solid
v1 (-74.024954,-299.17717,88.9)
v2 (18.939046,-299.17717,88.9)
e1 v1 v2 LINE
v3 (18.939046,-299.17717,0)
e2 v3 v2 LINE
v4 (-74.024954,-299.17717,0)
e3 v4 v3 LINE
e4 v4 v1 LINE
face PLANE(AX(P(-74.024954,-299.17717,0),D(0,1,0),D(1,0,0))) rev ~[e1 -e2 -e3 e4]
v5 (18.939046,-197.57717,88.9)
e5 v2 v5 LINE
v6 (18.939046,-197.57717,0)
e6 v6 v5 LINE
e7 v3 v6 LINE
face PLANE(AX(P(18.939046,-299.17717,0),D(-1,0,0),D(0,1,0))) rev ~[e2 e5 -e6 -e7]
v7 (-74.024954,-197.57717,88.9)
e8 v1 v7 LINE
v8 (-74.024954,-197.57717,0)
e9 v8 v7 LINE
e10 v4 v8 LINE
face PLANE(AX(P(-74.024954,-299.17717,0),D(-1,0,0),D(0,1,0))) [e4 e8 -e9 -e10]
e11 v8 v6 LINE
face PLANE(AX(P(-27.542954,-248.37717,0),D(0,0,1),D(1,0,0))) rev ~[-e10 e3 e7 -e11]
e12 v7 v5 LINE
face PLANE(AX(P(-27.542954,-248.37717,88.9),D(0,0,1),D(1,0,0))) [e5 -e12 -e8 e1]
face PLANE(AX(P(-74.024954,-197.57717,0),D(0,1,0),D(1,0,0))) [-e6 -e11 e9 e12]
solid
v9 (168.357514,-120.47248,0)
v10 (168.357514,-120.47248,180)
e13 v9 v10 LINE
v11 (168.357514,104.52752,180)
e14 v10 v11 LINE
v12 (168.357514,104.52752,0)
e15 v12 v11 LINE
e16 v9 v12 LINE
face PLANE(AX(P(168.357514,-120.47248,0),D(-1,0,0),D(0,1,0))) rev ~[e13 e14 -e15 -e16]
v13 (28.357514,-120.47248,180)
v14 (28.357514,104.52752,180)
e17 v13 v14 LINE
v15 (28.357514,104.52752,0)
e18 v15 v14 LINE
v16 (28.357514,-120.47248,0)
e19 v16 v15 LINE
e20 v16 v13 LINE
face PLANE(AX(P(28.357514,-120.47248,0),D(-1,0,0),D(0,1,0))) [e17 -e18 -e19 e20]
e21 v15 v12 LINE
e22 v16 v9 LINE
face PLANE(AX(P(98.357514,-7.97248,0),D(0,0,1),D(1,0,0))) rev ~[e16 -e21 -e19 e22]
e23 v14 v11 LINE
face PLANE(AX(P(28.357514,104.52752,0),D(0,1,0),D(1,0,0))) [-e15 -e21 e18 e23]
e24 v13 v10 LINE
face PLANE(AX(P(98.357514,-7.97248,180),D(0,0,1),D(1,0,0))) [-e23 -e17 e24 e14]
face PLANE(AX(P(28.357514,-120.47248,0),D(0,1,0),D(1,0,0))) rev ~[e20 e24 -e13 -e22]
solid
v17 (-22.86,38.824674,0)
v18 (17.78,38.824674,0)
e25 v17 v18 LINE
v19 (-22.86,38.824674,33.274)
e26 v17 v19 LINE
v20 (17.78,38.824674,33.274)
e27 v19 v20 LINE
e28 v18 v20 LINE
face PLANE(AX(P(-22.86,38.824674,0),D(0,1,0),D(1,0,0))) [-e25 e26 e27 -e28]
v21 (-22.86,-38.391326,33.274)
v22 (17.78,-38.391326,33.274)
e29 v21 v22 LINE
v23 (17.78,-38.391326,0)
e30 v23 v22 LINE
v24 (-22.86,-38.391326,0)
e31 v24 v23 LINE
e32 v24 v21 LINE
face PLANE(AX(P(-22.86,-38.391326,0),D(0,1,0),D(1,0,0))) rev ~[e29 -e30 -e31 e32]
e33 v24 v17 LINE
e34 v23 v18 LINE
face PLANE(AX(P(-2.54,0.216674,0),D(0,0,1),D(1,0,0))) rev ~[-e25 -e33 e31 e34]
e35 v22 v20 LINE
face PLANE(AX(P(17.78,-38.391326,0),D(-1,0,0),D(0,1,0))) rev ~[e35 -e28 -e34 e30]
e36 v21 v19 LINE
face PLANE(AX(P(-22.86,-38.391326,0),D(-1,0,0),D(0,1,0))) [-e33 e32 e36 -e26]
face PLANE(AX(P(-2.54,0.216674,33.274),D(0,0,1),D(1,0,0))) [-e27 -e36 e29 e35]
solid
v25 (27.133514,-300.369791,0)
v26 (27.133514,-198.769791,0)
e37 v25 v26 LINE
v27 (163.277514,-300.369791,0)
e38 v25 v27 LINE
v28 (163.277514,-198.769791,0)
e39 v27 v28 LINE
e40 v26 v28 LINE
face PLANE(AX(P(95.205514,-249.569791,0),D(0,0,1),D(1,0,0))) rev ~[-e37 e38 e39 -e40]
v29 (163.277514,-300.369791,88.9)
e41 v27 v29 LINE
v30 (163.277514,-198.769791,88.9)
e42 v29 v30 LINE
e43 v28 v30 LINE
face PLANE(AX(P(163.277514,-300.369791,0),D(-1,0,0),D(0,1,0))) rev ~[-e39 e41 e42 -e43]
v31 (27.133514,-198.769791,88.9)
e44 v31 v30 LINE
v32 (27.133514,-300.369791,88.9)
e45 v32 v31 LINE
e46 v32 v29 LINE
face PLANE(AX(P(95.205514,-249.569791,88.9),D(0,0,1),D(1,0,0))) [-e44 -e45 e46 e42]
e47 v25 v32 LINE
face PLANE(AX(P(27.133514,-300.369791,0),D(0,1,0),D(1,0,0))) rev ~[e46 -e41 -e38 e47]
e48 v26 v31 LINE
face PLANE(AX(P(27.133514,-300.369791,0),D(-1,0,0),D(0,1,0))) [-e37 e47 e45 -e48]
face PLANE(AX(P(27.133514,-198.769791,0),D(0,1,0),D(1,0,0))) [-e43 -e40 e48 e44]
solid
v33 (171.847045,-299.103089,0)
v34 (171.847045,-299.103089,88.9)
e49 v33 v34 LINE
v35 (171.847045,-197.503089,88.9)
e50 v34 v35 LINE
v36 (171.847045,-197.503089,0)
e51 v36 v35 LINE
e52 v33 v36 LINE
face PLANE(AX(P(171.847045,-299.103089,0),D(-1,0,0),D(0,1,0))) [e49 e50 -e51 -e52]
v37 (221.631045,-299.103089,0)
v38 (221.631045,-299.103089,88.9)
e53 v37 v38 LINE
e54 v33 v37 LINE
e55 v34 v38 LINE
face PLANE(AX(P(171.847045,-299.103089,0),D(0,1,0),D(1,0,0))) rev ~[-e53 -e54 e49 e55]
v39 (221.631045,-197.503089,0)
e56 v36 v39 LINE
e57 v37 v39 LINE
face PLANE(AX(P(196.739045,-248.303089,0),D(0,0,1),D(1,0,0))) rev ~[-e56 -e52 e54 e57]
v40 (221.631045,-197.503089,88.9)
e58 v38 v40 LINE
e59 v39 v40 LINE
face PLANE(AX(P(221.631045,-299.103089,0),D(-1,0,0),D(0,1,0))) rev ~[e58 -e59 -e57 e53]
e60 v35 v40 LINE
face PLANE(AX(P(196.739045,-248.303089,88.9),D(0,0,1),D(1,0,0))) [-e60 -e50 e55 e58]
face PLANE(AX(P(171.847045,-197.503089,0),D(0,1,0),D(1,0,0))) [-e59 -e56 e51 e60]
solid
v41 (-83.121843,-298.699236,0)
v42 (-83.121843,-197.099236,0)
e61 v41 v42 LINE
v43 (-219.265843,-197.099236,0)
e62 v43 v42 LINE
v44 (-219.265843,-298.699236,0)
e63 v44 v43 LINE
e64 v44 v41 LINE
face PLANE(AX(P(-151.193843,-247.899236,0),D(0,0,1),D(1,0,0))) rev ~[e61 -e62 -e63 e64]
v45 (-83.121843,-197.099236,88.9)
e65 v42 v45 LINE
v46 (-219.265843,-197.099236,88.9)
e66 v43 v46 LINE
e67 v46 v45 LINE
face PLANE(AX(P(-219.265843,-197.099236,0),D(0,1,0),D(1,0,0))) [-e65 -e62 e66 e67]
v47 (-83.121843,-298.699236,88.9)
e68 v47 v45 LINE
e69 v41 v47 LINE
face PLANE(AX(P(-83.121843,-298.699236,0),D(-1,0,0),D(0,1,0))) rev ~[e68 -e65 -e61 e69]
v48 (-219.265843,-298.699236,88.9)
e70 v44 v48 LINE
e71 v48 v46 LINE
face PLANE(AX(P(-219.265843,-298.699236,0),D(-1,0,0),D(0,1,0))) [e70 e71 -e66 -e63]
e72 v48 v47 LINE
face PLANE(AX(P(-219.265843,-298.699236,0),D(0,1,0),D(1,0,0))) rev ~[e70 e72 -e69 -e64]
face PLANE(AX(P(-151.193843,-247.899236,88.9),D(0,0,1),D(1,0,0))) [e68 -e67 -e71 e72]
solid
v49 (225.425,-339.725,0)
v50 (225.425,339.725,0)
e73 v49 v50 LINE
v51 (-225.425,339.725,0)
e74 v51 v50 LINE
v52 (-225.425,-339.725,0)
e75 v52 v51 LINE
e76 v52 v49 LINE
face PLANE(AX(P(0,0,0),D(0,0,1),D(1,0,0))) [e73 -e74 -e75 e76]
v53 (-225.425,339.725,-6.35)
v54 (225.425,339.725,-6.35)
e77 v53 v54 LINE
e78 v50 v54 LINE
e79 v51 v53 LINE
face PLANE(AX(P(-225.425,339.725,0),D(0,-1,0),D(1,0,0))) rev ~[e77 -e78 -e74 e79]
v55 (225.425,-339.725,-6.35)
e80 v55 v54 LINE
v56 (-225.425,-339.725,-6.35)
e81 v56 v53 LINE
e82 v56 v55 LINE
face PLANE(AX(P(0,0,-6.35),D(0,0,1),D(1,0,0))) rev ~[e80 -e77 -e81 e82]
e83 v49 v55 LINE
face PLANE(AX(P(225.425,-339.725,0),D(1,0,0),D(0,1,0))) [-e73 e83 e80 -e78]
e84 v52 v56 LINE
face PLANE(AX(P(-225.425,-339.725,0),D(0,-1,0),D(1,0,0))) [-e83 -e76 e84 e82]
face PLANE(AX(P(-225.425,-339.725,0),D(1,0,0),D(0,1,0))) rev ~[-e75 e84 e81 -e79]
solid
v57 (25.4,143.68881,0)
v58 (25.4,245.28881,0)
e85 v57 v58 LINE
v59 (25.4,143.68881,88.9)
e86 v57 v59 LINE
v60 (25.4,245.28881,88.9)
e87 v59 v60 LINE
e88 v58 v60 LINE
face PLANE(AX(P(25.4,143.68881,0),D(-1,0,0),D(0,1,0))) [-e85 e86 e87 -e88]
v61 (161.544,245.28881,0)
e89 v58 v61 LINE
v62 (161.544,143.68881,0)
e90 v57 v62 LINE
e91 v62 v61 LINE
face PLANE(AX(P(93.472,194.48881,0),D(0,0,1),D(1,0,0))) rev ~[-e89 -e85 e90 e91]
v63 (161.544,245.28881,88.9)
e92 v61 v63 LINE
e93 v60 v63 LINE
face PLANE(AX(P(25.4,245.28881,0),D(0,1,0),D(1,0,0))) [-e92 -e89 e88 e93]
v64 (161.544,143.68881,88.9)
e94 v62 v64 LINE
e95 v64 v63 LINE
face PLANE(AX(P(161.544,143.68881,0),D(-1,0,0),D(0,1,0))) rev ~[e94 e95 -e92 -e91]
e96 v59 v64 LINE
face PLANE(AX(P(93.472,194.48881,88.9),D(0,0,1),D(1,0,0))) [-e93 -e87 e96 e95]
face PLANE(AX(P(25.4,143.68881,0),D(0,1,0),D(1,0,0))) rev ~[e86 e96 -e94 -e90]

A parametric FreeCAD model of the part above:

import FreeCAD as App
import Part
import Sketcher

V = App.Vector
Q = App.Units.Quantity

doc = App.newDocument("Part")
body = doc.addObject("PartDesign::Body", "Body")

# Sketch on XY plane
sketch1 = body.newObject("Sketcher::SketchObject", "Sketch")
sketch1.AttachmentSupport = (doc.getObject("XY_Plane"), [""])
sketch1.MapMode = "FlatFace"
sketch1.addGeometry(Part.LineSegment(V(-225, 340, 0), V(-225, -340, 0)), False)
sketch1.addGeometry(Part.LineSegment(V(-225, -340, 0), V(225, -340, 0)), False)
sketch1.addGeometry(Part.LineSegment(V(225, -340, 0), V(225, 340, 0)), False)
sketch1.addGeometry(Part.LineSegment(V(225, 340, 0), V(-225, 340, 0)), False)
sketch1.addConstraint(Sketcher.Constraint("Coincident", 0, 2, 1, 1))
sketch1.addConstraint(Sketcher.Constraint("Coincident", 1, 2, 2, 1))
sketch1.addConstraint(Sketcher.Constraint("Coincident", 2, 2, 3, 1))
sketch1.addConstraint(Sketcher.Constraint("Coincident", 3, 2, 0, 1))
sketch1.addConstraint(Sketcher.Constraint("Vertical", 0))
sketch1.addConstraint(Sketcher.Constraint("Horizontal", 1))
sketch1.addConstraint(Sketcher.Constraint("Vertical", 2))
sketch1.addConstraint(Sketcher.Constraint("Horizontal", 3))
sketch1.addConstraint(Sketcher.Constraint("Symmetric", 0, 2, 2, 2, -1, 1))
sketch1.addConstraint(Sketcher.Constraint("DistanceX", 1, 1, 1, 2, Q("17.75 in")))
sketch1.addConstraint(Sketcher.Constraint("DistanceY", 0, 2, 0, 1, Q("26.75 in")))
pad1 = body.newObject("PartDesign::Pad", "Pad")
pad1.Profile = sketch1
pad1.Length = Q("0.25 in")
pad1.Reversed = True
body2 = doc.addObject("PartDesign::Body", "Body001")

# Sketch on XY plane
sketch2 = body2.newObject("Sketcher::SketchObject", "Sketch001")
sketch2.AttachmentSupport = (doc.getObject("XY_Plane001"), [""])
sketch2.MapMode = "FlatFace"
sketch2.addGeometry(Part.LineSegment(V(35, -123, 0), V(35, -224, 0)), False)
sketch2.addGeometry(Part.LineSegment(V(35, -224, 0), V(171, -224, 0)), False)
sketch2.addGeometry(Part.LineSegment(V(171, -224, 0), V(171, -123, 0)), False)
sketch2.addGeometry(Part.LineSegment(V(171, -123, 0), V(35, -123, 0)), False)
sketch2.addConstraint(Sketcher.Constraint("Coincident", 0, 2, 1, 1))
sketch2.addConstraint(Sketcher.Constraint("Coincident", 1, 2, 2, 1))
sketch2.addConstraint(Sketcher.Constraint("Coincident", 2, 2, 3, 1))
sketch2.addConstraint(Sketcher.Constraint("Coincident", 3, 2, 0, 1))
sketch2.addConstraint(Sketcher.Constraint("Vertical", 0))
sketch2.addConstraint(Sketcher.Constraint("Horizontal", 1))
sketch2.addConstraint(Sketcher.Constraint("Vertical", 2))
sketch2.addConstraint(Sketcher.Constraint("Horizontal", 3))
sketch2.addConstraint(Sketcher.Constraint("DistanceY", 0, 2, 0, 1, Q("4 in")))
sketch2.addConstraint(Sketcher.Constraint("DistanceX", 1, 1, 1, 2, Q("5.36 in")))
sketch2.addConstraint(Sketcher.Constraint("DistanceY", 0, 2, -1, 1, Q("224.169791 mm")))
sketch2.addConstraint(Sketcher.Constraint("DistanceX", -1, 1, 0, 2, Q("34.753514 mm")))
pad2 = body2.newObject("PartDesign::Pad", "Pad001")
pad2.Profile = sketch2
pad2.Length = Q("3.5 in")
body3 = doc.addObject("PartDesign::Body", "Body002")

# Sketch on XY plane
sketch3 = body3.newObject("Sketcher::SketchObject", "Sketch002")
sketch3.AttachmentSupport = (doc.getObject("XY_Plane002"), [""])
sketch3.MapMode = "FlatFace"
sketch3.addGeometry(Part.LineSegment(V(0, 210, 0), V(0, 108, 0)), False)
sketch3.addGeometry(Part.LineSegment(V(0, 108, 0), V(136, 108, 0)), False)
sketch3.addGeometry(Part.LineSegment(V(136, 108, 0), V(136, 210, 0)), False)
sketch3.addGeometry(Part.LineSegment(V(136, 210, 0), V(0, 210, 0)), False)
sketch3.addConstraint(Sketcher.Constraint("Coincident", 0, 2, 1, 1))
sketch3.addConstraint(Sketcher.Constraint("Coincident", 1, 2, 2, 1))
sketch3.addConstraint(Sketcher.Constraint("Coincident", 2, 2, 3, 1))
sketch3.addConstraint(Sketcher.Constraint("Coincident", 3, 2, 0, 1))
sketch3.addConstraint(Sketcher.Constraint("Vertical", 0))
sketch3.addConstraint(Sketcher.Constraint("Horizontal", 1))
sketch3.addConstraint(Sketcher.Constraint("Vertical", 2))
sketch3.addConstraint(Sketcher.Constraint("Horizontal", 3))
sketch3.addConstraint(Sketcher.Constraint("PointOnObject", 0, 2, -2))
sketch3.addConstraint(Sketcher.Constraint("DistanceY", 0, 2, 0, 1, Q("4 in")))
sketch3.addConstraint(Sketcher.Constraint("DistanceX", 1, 1, 1, 2, Q("5.36 in")))
sketch3.addConstraint(Sketcher.Constraint("DistanceY", -1, 1, 0, 2, Q("108.12881 mm")))
pad3 = body3.newObject("PartDesign::Pad", "Pad002")
pad3.Profile = sketch3
pad3.Length = Q("3.5 in")
body4 = doc.addObject("PartDesign::Body", "Body003")

# Sketch on XY plane
sketch4 = body4.newObject("Sketcher::SketchObject", "Sketch003")
sketch4.AttachmentSupport = (doc.getObject("XY_Plane003"), [""])
sketch4.MapMode = "FlatFace"
sketch4.addGeometry(Part.LineSegment(V(-42, -126, 0), V(-42, -228, 0)), False)
sketch4.addGeometry(Part.LineSegment(V(-42, -228, 0), V(8, -228, 0)), False)
sketch4.addGeometry(Part.LineSegment(V(8, -228, 0), V(8, -126, 0)), False)
sketch4.addGeometry(Part.LineSegment(V(8, -126, 0), V(-42, -126, 0)), False)
sketch4.addConstraint(Sketcher.Constraint("Coincident", 0, 2, 1, 1))
sketch4.addConstraint(Sketcher.Constraint("Coincident", 1, 2, 2, 1))
sketch4.addConstraint(Sketcher.Constraint("Coincident", 2, 2, 3, 1))
sketch4.addConstraint(Sketcher.Constraint("Coincident", 3, 2, 0, 1))
sketch4.addConstraint(Sketcher.Constraint("Vertical", 0))
sketch4.addConstraint(Sketcher.Constraint("Horizontal", 1))
sketch4.addConstraint(Sketcher.Constraint("Vertical", 2))
sketch4.addConstraint(Sketcher.Constraint("Horizontal", 3))
sketch4.addConstraint(Sketcher.Constraint("DistanceY", 0, 2, 0, 1, Q("4 in")))
sketch4.addConstraint(Sketcher.Constraint("DistanceX", 1, 1, 1, 2, Q("1.96 in")))
sketch4.addConstraint(Sketcher.Constraint("DistanceY", 0, 2, -1, 1, Q("227.983089 mm")))
sketch4.addConstraint(Sketcher.Constraint("DistanceX", 0, 2, -1, 1, Q("41.512955 mm")))
pad4 = body4.newObject("PartDesign::Pad", "Pad003")
pad4.Profile = sketch4
pad4.Length = Q("3.5 in")
body5 = doc.addObject("PartDesign::Body", "Body004")

# Sketch on XY plane
sketch5 = body5.newObject("Sketcher::SketchObject", "Sketch004")
sketch5.AttachmentSupport = (doc.getObject("XY_Plane004"), [""])
sketch5.MapMode = "FlatFace"
sketch5.addGeometry(Part.LineSegment(V(-222, -126, 0), V(-222, -228, 0)), False)
sketch5.addGeometry(Part.LineSegment(V(-222, -228, 0), V(-86, -228, 0)), False)
sketch5.addGeometry(Part.LineSegment(V(-86, -228, 0), V(-86, -126, 0)), False)
sketch5.addGeometry(Part.LineSegment(V(-86, -126, 0), V(-222, -126, 0)), False)
sketch5.addConstraint(Sketcher.Constraint("Coincident", 0, 2, 1, 1))
sketch5.addConstraint(Sketcher.Constraint("Coincident", 1, 2, 2, 1))
sketch5.addConstraint(Sketcher.Constraint("Coincident", 2, 2, 3, 1))
sketch5.addConstraint(Sketcher.Constraint("Coincident", 3, 2, 0, 1))
sketch5.addConstraint(Sketcher.Constraint("Vertical", 0))
sketch5.addConstraint(Sketcher.Constraint("Horizontal", 1))
sketch5.addConstraint(Sketcher.Constraint("Vertical", 2))
sketch5.addConstraint(Sketcher.Constraint("Horizontal", 3))
sketch5.addConstraint(Sketcher.Constraint("DistanceY", 0, 2, 0, 1, Q("4 in")))
sketch5.addConstraint(Sketcher.Constraint("DistanceX", 1, 1, 1, 2, Q("5.36 in")))
sketch5.addConstraint(Sketcher.Constraint("DistanceX", 0, 2, -1, 1, Q("221.805843 mm")))
sketch5.addConstraint(Sketcher.Constraint("DistanceY", 0, 2, -1, 1, Q("227.579236 mm")))
pad5 = body5.newObject("PartDesign::Pad", "Pad004")
pad5.Profile = sketch5
pad5.Length = Q("3.5 in")
body6 = doc.addObject("PartDesign::Body", "Body005")
doc.recompute()

body2.Placement = App.Placement(V(-7.62, -76.2, 0), App.Rotation(V(0, 0, 1), 0))
boolean = body6.newObject("PartDesign::Boolean", "Boolean")
boolean.Type = "Fuse"
boolean.addObjects([body2])
body7 = doc.addObject("PartDesign::Body", "Body006")
doc.recompute()

body4.Placement = App.Placement(V(213.36, -71.12, 0), App.Rotation(V(0, 0, 1), 0))
boolean2 = body7.newObject("PartDesign::Boolean", "Boolean001")
boolean2.Type = "Fuse"
boolean2.addObjects([body4])
body8 = doc.addObject("PartDesign::Body", "Body007")
doc.recompute()

body5.Placement = App.Placement(V(2.54, -71.12, 0), App.Rotation(V(0, 0, 1), 0))
boolean3 = body8.newObject("PartDesign::Boolean", "Boolean002")
boolean3.Type = "Fuse"
boolean3.addObjects([body5])
body9 = doc.addObject("PartDesign::Body", "Body008")

# Sketch on XY plane
sketch6 = body9.newObject("Sketcher::SketchObject", "Sketch005")
sketch6.AttachmentSupport = (doc.getObject("XY_Plane008"), [""])
sketch6.MapMode = "FlatFace"
sketch6.addGeometry(Part.LineSegment(V(-110, -198, 0), V(-110, -299, 0)), False)
sketch6.addGeometry(Part.LineSegment(V(-110, -299, 0), V(-17, -299, 0)), False)
sketch6.addGeometry(Part.LineSegment(V(-17, -299, 0), V(-17, -198, 0)), False)
sketch6.addGeometry(Part.LineSegment(V(-17, -198, 0), V(-110, -198, 0)), False)
sketch6.addConstraint(Sketcher.Constraint("Coincident", 0, 2, 1, 1))
sketch6.addConstraint(Sketcher.Constraint("Coincident", 1, 2, 2, 1))
sketch6.addConstraint(Sketcher.Constraint("Coincident", 2, 2, 3, 1))
sketch6.addConstraint(Sketcher.Constraint("Coincident", 3, 2, 0, 1))
sketch6.addConstraint(Sketcher.Constraint("Vertical", 0))
sketch6.addConstraint(Sketcher.Constraint("Horizontal", 1))
sketch6.addConstraint(Sketcher.Constraint("Vertical", 2))
sketch6.addConstraint(Sketcher.Constraint("Horizontal", 3))
sketch6.addConstraint(Sketcher.Constraint("DistanceY", 0, 2, 0, 1, Q("4 in")))
sketch6.addConstraint(Sketcher.Constraint("DistanceX", 1, 1, 1, 2, Q("3.66 in")))
sketch6.addConstraint(Sketcher.Constraint("DistanceY", 0, 2, -1, 1, Q("299.17717 mm")))
sketch6.addConstraint(Sketcher.Constraint("DistanceX", 0, 2, -1, 1, Q("109.584954 mm")))
pad6 = body9.newObject("PartDesign::Pad", "Pad005")
pad6.Profile = sketch6
pad6.Length = Q("3.5 in")
body10 = doc.addObject("PartDesign::Body", "Body009")
doc.recompute()

body9.Placement = App.Placement(V(35.56, 0, 0), App.Rotation(V(0, 0, 1), 0))
boolean4 = body10.newObject("PartDesign::Boolean", "Boolean003")
boolean4.Type = "Fuse"
boolean4.addObjects([body9])
body11 = doc.addObject("PartDesign::Body", "Body010")

# Sketch on XY plane
sketch7 = body11.newObject("Sketcher::SketchObject", "Sketch006")
sketch7.AttachmentSupport = (doc.getObject("XY_Plane010"), [""])
sketch7.MapMode = "FlatFace"
sketch7.addGeometry(Part.LineSegment(V(31, 61, 0), V(31, -164, 0)), False)
sketch7.addGeometry(Part.LineSegment(V(31, -164, 0), V(171, -164, 0)), False)
sketch7.addGeometry(Part.LineSegment(V(171, -164, 0), V(171, 61, 0)), False)
sketch7.addGeometry(Part.LineSegment(V(171, 61, 0), V(31, 61, 0)), False)
sketch7.addConstraint(Sketcher.Constraint("Coincident", 0, 2, 1, 1))
sketch7.addConstraint(Sketcher.Constraint("Coincident", 1, 2, 2, 1))
sketch7.addConstraint(Sketcher.Constraint("Coincident", 2, 2, 3, 1))
sketch7.addConstraint(Sketcher.Constraint("Coincident", 3, 2, 0, 1))
sketch7.addConstraint(Sketcher.Constraint("Vertical", 0))
sketch7.addConstraint(Sketcher.Constraint("Horizontal", 1))
sketch7.addConstraint(Sketcher.Constraint("Vertical", 2))
sketch7.addConstraint(Sketcher.Constraint("Horizontal", 3))
sketch7.addConstraint(Sketcher.Constraint("DistanceX", 1, 1, 1, 2, Q("140 mm")))
sketch7.addConstraint(Sketcher.Constraint("DistanceY", 0, 2, 0, 1, Q("225 mm")))
sketch7.addConstraint(Sketcher.Constraint("DistanceY", 0, 2, -1, 1, Q("163.65248 mm")))
sketch7.addConstraint(Sketcher.Constraint("DistanceX", -1, 1, 0, 2, Q("30.897514 mm")))
pad7 = body11.newObject("PartDesign::Pad", "Pad006")
pad7.Profile = sketch7
pad7.Length = 180
body12 = doc.addObject("PartDesign::Body", "Body011")

# Sketch on XY plane
sketch8 = body12.newObject("Sketcher::SketchObject", "Sketch007")
sketch8.AttachmentSupport = (doc.getObject("XY_Plane011"), [""])
sketch8.MapMode = "FlatFace"
sketch8.addGeometry(Part.LineSegment(V(-41, -93, 0), V(-41, -170, 0)), False)
sketch8.addGeometry(Part.LineSegment(V(-41, -170, 0), V(0, -170, 0)), False)
sketch8.addGeometry(Part.LineSegment(V(0, -170, 0), V(0, -93, 0)), False)
sketch8.addGeometry(Part.LineSegment(V(0, -93, 0), V(-41, -93, 0)), False)
sketch8.addConstraint(Sketcher.Constraint("Coincident", 0, 2, 1, 1))
sketch8.addConstraint(Sketcher.Constraint("Coincident", 1, 2, 2, 1))
sketch8.addConstraint(Sketcher.Constraint("Coincident", 2, 2, 3, 1))
sketch8.addConstraint(Sketcher.Constraint("Coincident", 3, 2, 0, 1))
sketch8.addConstraint(Sketcher.Constraint("Vertical", 0))
sketch8.addConstraint(Sketcher.Constraint("Horizontal", 1))
sketch8.addConstraint(Sketcher.Constraint("Vertical", 2))
sketch8.addConstraint(Sketcher.Constraint("Horizontal", 3))
sketch8.addConstraint(Sketcher.Constraint("PointOnObject", 1, 2, -2))
sketch8.addConstraint(Sketcher.Constraint("DistanceX", 1, 1, 1, 2, Q("1.6 in")))
sketch8.addConstraint(Sketcher.Constraint("DistanceY", 0, 2, 0, 1, Q("3.04 in")))
sketch8.addConstraint(Sketcher.Constraint("DistanceY", 0, 2, -1, 1, Q("170.471326 mm")))
pad8 = body12.newObject("PartDesign::Pad", "Pad007")
pad8.Profile = sketch8
pad8.Length = Q("1.31 in")
body13 = doc.addObject("PartDesign::Body", "Body012")
doc.recompute()

body11.Placement = App.Placement(V(-2.54, 43.18, 0), App.Rotation(V(0, 0, 1), 0))
boolean5 = body13.newObject("PartDesign::Boolean", "Boolean004")
boolean5.Type = "Fuse"
boolean5.addObjects([body11])
body14 = doc.addObject("PartDesign::Body", "Body013")
doc.recompute()

body3.Placement = App.Placement(V(25.4, 35.56, 0), App.Rotation(V(0, 0, 1), 0))
boolean6 = body14.newObject("PartDesign::Boolean", "Boolean005")
boolean6.Type = "Fuse"
boolean6.addObjects([body3])
body15 = doc.addObject("PartDesign::Body", "Body014")
doc.recompute()

body12.Placement = App.Placement(V(17.78, 132.08, 0), App.Rotation(V(0, 0, 1), 0))
boolean7 = body15.newObject("PartDesign::Boolean", "Boolean006")
boolean7.Type = "Fuse"
boolean7.addObjects([body12])

doc.recompute()
